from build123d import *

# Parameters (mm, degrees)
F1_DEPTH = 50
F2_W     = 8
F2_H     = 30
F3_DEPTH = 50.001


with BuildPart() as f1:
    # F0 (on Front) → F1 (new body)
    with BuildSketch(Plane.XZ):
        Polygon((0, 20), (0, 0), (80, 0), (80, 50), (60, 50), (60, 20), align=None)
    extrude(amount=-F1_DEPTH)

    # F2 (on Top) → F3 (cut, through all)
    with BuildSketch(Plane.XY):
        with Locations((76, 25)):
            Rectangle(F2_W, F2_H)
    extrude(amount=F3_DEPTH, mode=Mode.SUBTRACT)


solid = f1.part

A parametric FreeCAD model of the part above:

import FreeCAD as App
import Part
import Sketcher
Q = App.Units.Quantity

doc = App.newDocument("Part")
params = doc.addObject("Spreadsheet::Sheet", "Params")
for row, (alias, value) in enumerate([
    ("sketch1_width", "80 mm"),
    ("sketch1_width2", "20 mm"),
    ("sketch1_height", "50 mm"),
    ("pad1_length", "50 mm"),
    ("sketch2_width", "8 mm"),
    ("sketch2_height", "30 mm"),
], start=1):
    params.set(f"A{row}", alias)
    params.set(f"B{row}", "=" + value)
    params.setAlias(f"B{row}", alias)

body = doc.addObject("PartDesign::Body", "Body")

sketch1 = doc.addObject("Sketcher::SketchObject", "Sketch")
body.addObject(sketch1)
sketch1.AttachmentSupport = (doc.XZ_Plane, [""])
sketch1.MapMode = "FlatFace"
sketch1.addGeometry([
    Part.LineSegment(App.Vector(0, 20, 0), App.Vector(0, 0, 0)),
    Part.LineSegment(App.Vector(0, 0, 0), App.Vector(80, 0, 0)),
    Part.LineSegment(App.Vector(80, 0, 0), App.Vector(80, 50, 0)),
    Part.LineSegment(App.Vector(80, 50, 0), App.Vector(60, 50, 0)),
    Part.LineSegment(App.Vector(60, 50, 0), App.Vector(60, 20, 0)),
    Part.LineSegment(App.Vector(60, 20, 0), App.Vector(0, 20, 0)),
], False)
sketch1.addConstraint([
    Sketcher.Constraint("Coincident", 0, 2, 1, 1),
    Sketcher.Constraint("Coincident", 1, 2, 2, 1),
    Sketcher.Constraint("Coincident", 2, 2, 3, 1),
    Sketcher.Constraint("Coincident", 3, 2, 4, 1),
    Sketcher.Constraint("Coincident", 4, 2, 5, 1),
    Sketcher.Constraint("Coincident", 5, 2, 0, 1),
    Sketcher.Constraint("Vertical", 0),
    Sketcher.Constraint("Horizontal", 1),
    Sketcher.Constraint("Vertical", 2),
    Sketcher.Constraint("Horizontal", 3),
    Sketcher.Constraint("Vertical", 4),
    Sketcher.Constraint("Horizontal", 5),
    Sketcher.Constraint("Coincident", 0, 2, -1, 1),
    Sketcher.Constraint("Equal", 3, 0),
    Sketcher.Constraint("DistanceX", 1, 1, 1, 2, Q("80 mm")),
    Sketcher.Constraint("DistanceX", 3, 2, 3, 1, Q("20 mm")),
    Sketcher.Constraint("DistanceY", 2, 1, 2, 2, Q("50 mm")),
])
sketch1.setExpression("Constraints[14]", "Params.sketch1_width")
sketch1.setExpression("Constraints[15]", "Params.sketch1_width2")
sketch1.setExpression("Constraints[16]", "Params.sketch1_height")
pad1 = doc.addObject("PartDesign::Pad", "Pad")
body.addObject(pad1)
pad1.Profile = sketch1
pad1.setExpression("Length", "Params.pad1_length")
pad1.Reversed = True

sketch2 = doc.addObject("Sketcher::SketchObject", "Sketch001")
body.addObject(sketch2)
sketch2.AttachmentSupport = (doc.XY_Plane, [""])
sketch2.MapMode = "FlatFace"
sketch2.addGeometry([
    Part.LineSegment(App.Vector(72, 40, 0), App.Vector(72, 10, 0)),
    Part.LineSegment(App.Vector(72, 10, 0), App.Vector(80, 10, 0)),
    Part.LineSegment(App.Vector(80, 10, 0), App.Vector(80, 40, 0)),
    Part.LineSegment(App.Vector(80, 40, 0), App.Vector(72, 40, 0)),
], False)
sketch2.addConstraint([
    Sketcher.Constraint("Coincident", 0, 2, 1, 1),
    Sketcher.Constraint("Coincident", 1, 2, 2, 1),
    Sketcher.Constraint("Coincident", 2, 2, 3, 1),
    Sketcher.Constraint("Coincident", 3, 2, 0, 1),
    Sketcher.Constraint("Vertical", 0),
    Sketcher.Constraint("Horizontal", 1),
    Sketcher.Constraint("Vertical", 2),
    Sketcher.Constraint("Horizontal", 3),
    Sketcher.Constraint("DistanceX", 1, 1, 1, 2, Q("8 mm")),
    Sketcher.Constraint("DistanceY", 0, 2, 0, 1, Q("30 mm")),
    Sketcher.Constraint("DistanceX", -1, 1, 0, 2, Q("72 mm")),
    Sketcher.Constraint("DistanceY", -1, 1, 0, 2, Q("10 mm")),
])
sketch2.setExpression("Constraints[8]", "Params.sketch2_width")
sketch2.setExpression("Constraints[9]", "Params.sketch2_height")
pocket1 = doc.addObject("PartDesign::Pocket", "Pocket")
body.addObject(pocket1)
pocket1.Profile = sketch2
pocket1.Type = "ThroughAll"
pocket1.Reversed = True

doc.recompute()
